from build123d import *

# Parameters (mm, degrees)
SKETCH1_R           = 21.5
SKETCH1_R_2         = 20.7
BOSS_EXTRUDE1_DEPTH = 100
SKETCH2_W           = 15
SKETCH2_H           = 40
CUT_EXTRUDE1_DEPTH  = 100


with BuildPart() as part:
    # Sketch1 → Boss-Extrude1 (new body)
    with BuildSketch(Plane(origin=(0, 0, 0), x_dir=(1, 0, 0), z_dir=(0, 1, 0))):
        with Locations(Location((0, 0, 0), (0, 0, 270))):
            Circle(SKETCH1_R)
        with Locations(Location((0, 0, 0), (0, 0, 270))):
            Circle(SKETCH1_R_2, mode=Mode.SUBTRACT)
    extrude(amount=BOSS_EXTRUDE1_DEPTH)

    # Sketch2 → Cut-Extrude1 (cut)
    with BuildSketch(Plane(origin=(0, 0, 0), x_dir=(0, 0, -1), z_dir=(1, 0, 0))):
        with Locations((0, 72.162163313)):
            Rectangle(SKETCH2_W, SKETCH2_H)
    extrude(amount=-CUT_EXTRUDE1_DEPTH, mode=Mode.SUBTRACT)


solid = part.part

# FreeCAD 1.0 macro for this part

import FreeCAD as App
import Part
import Sketcher

V = App.Vector
Q = App.Units.Quantity


def add_polygon(sketch, points):
    """Adds a closed chain of lines whose ends are joined by coincident constraints."""
    first, n = sketch.GeometryCount, len(points)
    for a, b in zip(points, points[1:] + points[:1]):
        sketch.addGeometry(Part.LineSegment(App.Vector(*a, 0), App.Vector(*b, 0)), False)
    for i in range(n):
        sketch.addConstraint(Sketcher.Constraint("Coincident", first + i, 2, first + (i + 1) % n, 1))

doc = App.newDocument("Part")
body = doc.addObject("PartDesign::Body", "Body")

# Sketch on XZ plane
sketch1 = body.newObject("Sketcher::SketchObject", "Sketch")
sketch1.AttachmentSupport = (doc.getObject("XZ_Plane"), [""])
sketch1.MapMode = "FlatFace"
sketch1.addGeometry(Part.Circle(V(0, 0, 0), V(0, 0, 1), 22), False)
sketch1.addGeometry(Part.Circle(V(0, 0, 0), V(0, 0, 1), 21), False)
sketch1.addConstraint(Sketcher.Constraint("Coincident", 0, 3, -1, 1))
sketch1.addConstraint(Sketcher.Constraint("Coincident", 1, 3, -1, 1))
sketch1.addConstraint(Sketcher.Constraint("Diameter", 0, Q("43 mm")))
sketch1.addConstraint(Sketcher.Constraint("Diameter", 1, Q("41.4 mm")))
pad1 = body.newObject("PartDesign::Pad", "Pad")
pad1.Profile = sketch1
pad1.Length = 100
pad1.Reversed = True

# Sketch on YZ plane
sketch2 = body.newObject("Sketcher::SketchObject", "Sketch001")
sketch2.AttachmentSupport = (doc.getObject("YZ_Plane"), [""])
sketch2.MapMode = "FlatFace"
add_polygon(sketch2, [(92, 8), (52, 8), (52, -8), (92, -8)])  # lines 0-3
sketch2.addConstraint(Sketcher.Constraint("Horizontal", 0))
sketch2.addConstraint(Sketcher.Constraint("Vertical", 1))
sketch2.addConstraint(Sketcher.Constraint("Horizontal", 2))
sketch2.addConstraint(Sketcher.Constraint("Vertical", 3))
sketch2.addConstraint(Sketcher.Constraint("DistanceX", 0, 2, 0, 1, Q("40 mm")))
sketch2.addConstraint(Sketcher.Constraint("DistanceY", 1, 2, 1, 1, Q("15 mm")))
sketch2.addConstraint(Sketcher.Constraint("DistanceY", -1, 1, 0, 2, Q("7.5 mm")))
sketch2.addConstraint(Sketcher.Constraint("DistanceX", -1, 1, 0, 2, Q("52.162163 mm")))
pocket1 = body.newObject("PartDesign::Pocket", "Pocket")
pocket1.Profile = sketch2
pocket1.Length = 100

doc.recompute()
